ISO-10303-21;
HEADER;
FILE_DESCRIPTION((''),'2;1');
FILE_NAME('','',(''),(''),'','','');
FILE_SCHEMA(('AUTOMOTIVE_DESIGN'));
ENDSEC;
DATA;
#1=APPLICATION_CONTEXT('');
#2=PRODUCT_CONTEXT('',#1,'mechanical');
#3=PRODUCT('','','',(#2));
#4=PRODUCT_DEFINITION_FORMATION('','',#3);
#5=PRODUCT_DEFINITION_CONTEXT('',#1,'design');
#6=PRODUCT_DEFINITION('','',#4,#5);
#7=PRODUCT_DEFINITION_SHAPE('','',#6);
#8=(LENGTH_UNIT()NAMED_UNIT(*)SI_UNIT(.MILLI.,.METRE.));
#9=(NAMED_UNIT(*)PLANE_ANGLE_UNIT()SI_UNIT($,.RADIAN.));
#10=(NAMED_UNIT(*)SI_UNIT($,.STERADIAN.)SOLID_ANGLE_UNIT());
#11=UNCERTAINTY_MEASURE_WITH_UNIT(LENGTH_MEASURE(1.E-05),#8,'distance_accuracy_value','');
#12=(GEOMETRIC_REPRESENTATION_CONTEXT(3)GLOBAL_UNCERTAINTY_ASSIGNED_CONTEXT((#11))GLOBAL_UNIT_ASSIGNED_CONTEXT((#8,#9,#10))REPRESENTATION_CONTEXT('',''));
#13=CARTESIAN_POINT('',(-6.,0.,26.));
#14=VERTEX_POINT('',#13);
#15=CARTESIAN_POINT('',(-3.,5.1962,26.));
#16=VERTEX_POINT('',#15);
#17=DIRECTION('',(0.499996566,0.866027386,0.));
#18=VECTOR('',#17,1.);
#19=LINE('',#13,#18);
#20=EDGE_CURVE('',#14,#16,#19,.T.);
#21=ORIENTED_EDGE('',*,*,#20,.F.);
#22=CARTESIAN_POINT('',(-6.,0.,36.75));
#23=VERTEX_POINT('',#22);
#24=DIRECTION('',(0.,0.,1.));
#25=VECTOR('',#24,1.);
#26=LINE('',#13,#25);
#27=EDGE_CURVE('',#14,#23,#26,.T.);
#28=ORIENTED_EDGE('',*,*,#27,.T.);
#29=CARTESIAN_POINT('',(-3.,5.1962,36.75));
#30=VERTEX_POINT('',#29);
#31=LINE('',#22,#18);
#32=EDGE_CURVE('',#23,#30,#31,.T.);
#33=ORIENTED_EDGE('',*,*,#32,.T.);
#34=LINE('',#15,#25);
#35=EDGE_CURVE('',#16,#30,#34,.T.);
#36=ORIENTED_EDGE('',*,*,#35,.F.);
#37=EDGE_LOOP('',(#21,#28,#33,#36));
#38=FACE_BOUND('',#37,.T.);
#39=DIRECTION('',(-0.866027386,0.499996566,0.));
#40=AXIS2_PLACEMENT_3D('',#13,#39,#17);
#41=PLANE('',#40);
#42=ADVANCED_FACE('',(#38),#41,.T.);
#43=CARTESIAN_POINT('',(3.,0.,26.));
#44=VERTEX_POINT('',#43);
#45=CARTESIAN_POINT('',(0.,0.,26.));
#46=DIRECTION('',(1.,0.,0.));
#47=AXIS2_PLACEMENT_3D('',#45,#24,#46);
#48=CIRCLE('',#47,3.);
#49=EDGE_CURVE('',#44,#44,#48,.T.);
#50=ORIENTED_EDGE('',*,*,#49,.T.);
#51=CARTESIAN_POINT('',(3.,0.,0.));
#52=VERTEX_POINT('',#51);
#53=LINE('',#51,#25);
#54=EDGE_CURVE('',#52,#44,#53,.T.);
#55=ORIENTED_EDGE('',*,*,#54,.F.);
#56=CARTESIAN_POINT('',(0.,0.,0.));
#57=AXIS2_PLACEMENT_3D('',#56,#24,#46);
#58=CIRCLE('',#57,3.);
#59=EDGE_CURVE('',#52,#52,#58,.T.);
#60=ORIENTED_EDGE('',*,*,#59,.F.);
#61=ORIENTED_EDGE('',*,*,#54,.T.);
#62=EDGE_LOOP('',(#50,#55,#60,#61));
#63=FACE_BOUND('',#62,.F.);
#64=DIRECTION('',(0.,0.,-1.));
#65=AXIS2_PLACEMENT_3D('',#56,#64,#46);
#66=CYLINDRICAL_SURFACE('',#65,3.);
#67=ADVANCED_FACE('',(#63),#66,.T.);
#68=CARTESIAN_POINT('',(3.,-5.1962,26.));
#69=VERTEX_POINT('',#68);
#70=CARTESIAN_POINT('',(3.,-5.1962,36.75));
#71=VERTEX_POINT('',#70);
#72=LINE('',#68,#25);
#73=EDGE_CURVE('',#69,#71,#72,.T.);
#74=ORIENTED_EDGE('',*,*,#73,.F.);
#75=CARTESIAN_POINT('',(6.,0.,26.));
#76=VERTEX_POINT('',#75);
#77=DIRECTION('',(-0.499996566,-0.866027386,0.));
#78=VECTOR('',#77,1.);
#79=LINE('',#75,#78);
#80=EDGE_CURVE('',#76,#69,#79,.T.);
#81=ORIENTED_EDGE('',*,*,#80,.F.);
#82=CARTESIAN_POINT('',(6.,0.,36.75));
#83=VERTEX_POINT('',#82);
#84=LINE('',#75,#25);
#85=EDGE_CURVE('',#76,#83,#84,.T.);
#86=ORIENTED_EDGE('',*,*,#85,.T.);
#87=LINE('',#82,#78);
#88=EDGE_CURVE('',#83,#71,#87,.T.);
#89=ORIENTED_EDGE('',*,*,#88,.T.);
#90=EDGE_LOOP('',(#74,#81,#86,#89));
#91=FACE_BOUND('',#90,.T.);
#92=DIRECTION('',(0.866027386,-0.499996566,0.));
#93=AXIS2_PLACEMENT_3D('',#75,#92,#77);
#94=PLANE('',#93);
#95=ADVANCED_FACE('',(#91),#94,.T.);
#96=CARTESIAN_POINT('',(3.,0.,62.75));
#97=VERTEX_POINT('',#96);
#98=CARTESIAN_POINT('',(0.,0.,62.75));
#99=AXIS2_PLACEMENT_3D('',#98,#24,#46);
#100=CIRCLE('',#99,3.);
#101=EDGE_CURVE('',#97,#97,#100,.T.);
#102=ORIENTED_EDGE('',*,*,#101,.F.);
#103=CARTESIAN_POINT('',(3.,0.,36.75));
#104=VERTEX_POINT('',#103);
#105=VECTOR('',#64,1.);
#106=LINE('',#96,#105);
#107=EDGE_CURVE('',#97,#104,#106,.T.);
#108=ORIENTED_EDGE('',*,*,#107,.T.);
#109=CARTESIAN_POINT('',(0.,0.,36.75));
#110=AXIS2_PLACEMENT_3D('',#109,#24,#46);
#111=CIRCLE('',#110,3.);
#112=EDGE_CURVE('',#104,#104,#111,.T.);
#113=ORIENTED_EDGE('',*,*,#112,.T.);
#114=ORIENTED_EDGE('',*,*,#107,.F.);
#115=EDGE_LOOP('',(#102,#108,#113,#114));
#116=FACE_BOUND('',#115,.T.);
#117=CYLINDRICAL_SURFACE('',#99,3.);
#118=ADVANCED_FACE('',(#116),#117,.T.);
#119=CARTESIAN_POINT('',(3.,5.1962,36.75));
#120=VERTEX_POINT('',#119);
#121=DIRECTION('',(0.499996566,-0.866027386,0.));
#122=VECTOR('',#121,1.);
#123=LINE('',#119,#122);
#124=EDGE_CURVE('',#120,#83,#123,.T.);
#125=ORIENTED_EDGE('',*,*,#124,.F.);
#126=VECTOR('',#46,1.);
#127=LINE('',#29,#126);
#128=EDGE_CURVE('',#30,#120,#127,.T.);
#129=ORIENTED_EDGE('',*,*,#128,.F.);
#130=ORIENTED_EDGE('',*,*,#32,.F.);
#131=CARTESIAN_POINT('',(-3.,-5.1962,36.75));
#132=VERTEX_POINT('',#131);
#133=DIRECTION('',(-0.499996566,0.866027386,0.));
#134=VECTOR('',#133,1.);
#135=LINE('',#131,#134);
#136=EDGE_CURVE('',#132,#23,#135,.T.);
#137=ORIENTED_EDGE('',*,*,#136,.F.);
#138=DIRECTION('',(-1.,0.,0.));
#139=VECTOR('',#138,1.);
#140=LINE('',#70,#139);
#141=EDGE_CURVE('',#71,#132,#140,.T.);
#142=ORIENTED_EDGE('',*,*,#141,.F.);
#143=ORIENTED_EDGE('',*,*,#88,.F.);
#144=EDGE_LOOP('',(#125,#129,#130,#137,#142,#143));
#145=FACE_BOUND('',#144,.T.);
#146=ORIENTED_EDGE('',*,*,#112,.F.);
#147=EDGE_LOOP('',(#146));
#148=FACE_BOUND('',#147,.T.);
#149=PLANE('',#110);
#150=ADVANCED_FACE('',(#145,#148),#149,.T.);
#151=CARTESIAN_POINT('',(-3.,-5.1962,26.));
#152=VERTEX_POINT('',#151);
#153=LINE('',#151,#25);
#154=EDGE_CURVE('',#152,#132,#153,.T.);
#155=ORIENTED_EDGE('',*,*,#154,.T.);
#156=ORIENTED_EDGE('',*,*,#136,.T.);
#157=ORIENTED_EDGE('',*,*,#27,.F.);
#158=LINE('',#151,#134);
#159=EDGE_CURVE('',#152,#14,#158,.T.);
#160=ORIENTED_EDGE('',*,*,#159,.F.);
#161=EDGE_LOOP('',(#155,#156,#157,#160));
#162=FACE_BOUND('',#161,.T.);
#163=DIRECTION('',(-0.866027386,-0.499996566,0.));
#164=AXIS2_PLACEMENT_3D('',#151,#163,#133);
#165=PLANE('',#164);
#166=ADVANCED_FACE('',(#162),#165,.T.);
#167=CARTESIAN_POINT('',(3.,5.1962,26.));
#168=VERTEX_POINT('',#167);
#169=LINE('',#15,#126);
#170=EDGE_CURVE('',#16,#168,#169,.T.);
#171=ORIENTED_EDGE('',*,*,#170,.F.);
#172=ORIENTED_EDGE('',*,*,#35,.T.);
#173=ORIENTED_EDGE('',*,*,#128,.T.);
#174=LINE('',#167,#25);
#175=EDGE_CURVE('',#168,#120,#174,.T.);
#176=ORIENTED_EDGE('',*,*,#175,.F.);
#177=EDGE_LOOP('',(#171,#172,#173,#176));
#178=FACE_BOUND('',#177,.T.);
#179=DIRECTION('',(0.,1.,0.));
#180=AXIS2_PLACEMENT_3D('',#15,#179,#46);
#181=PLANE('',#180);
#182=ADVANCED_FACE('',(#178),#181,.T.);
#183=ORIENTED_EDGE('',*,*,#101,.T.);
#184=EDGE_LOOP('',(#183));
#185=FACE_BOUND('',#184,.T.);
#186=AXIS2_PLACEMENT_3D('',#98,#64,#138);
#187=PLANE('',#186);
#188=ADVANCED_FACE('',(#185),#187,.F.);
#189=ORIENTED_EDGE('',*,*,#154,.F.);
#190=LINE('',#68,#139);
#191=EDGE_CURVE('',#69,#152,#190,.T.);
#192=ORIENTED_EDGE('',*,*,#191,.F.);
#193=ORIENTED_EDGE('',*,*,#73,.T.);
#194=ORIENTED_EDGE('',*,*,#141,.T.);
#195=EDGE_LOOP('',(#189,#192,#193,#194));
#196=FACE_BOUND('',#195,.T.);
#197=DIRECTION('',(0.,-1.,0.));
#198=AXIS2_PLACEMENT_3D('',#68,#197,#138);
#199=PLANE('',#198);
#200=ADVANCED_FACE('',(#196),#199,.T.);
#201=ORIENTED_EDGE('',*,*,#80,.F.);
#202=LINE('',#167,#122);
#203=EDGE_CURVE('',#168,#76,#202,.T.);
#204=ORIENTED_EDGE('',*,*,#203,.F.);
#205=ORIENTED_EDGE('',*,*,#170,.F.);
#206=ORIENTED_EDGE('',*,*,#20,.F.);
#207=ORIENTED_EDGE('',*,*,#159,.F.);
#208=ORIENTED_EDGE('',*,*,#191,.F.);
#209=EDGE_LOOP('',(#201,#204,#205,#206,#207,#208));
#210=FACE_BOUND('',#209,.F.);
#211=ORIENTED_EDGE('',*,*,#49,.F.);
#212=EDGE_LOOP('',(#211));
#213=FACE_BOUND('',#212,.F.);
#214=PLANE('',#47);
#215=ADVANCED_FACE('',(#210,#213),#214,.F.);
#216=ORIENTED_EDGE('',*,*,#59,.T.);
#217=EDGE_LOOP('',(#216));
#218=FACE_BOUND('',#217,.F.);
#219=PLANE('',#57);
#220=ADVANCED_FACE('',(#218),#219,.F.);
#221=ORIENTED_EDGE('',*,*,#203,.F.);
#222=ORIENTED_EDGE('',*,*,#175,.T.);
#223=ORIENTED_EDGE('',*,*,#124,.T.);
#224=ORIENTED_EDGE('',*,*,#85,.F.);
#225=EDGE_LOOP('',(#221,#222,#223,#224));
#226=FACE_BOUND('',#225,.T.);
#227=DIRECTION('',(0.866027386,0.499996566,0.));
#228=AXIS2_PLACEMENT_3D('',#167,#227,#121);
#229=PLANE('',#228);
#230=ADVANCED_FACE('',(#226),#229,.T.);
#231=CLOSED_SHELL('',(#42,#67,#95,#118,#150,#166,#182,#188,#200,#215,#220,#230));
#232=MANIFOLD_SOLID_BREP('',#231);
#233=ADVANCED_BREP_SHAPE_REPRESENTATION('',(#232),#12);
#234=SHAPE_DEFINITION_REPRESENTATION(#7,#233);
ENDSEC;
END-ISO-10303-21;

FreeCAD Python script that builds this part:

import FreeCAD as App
import Part
import Sketcher
Q = App.Units.Quantity


def add_polygon(sketch, points):
    """Adds a closed chain of lines whose ends are joined by coincident constraints."""
    first, n = sketch.GeometryCount, len(points)
    for a, b in zip(points, points[1:] + points[:1]):
        sketch.addGeometry(Part.LineSegment(App.Vector(*a, 0), App.Vector(*b, 0)), False)
    for i in range(n):
        sketch.addConstraint(Sketcher.Constraint("Coincident", first + i, 2, first + (i + 1) % n, 1))

doc = App.newDocument("Part")
body = doc.addObject("PartDesign::Body", "Body")

# Sketch on XY plane
sketch1 = doc.addObject("Sketcher::SketchObject", "Sketch")
body.addObject(sketch1)
sketch1.AttachmentSupport = (doc.XY_Plane, [""])
sketch1.MapMode = "FlatFace"
sketch1.addGeometry(Part.Circle(App.Vector(0, 0, 0), App.Vector(0, 0, 1), 3), False)
sketch1.addConstraint([
    Sketcher.Constraint("Coincident", 0, 3, -1, 1),
    Sketcher.Constraint("Diameter", 0, Q("6 mm")),
])
pad1 = doc.addObject("PartDesign::Pad", "Pad")
body.addObject(pad1)
pad1.Profile = sketch1
pad1.Length = 26

# Sketch on XY plane
sketch2 = doc.addObject("Sketcher::SketchObject", "Sketch001")
body.addObject(sketch2)
sketch2.AttachmentSupport = (doc.XY_Plane, [""])
sketch2.MapMode = "FlatFace"
sketch2.AttachmentOffset = App.Placement(App.Vector(0, 0, 26), App.Rotation())
add_polygon(sketch2, [(3, -5), (6, 0), (3, 5), (-3, 5), (-6, 0), (-3, -5)])  # lines 0-5
sketch2.addConstraint([
    Sketcher.Constraint("Horizontal", 2),
    Sketcher.Constraint("Horizontal", 5),
    Sketcher.Constraint("Symmetric", 0, 2, 3, 2, -1, 1),
    Sketcher.Constraint("Symmetric", 1, 2, 4, 2, -1, 1),
    Sketcher.Constraint("PointOnObject", 0, 2, -1),
    Sketcher.Constraint("Parallel", 0, 3),
    Sketcher.Constraint("Vertical", 2, 2, 4, 2),
    Sketcher.Constraint("DistanceX", 2, 2, 2, 1, Q("6 mm")),
    Sketcher.Constraint("Distance", 0, Q("6 mm")),
    Sketcher.Constraint("DistanceX", -1, 1, 0, 2, Q("6 mm")),
])
pad2 = doc.addObject("PartDesign::Pad", "Pad001")
body.addObject(pad2)
pad2.Profile = sketch2
pad2.Length = 10.75
doc.recompute()

datumplane = doc.addObject("PartDesign::Plane", "DatumPlane")
body.addObject(datumplane)
datumplane.AttachmentSupport = (doc.XY_Plane, [""])
datumplane.MapMode = "FlatFace"
datumplane.AttachmentOffset = App.Placement(App.Vector(0, 0, 31.375), App.Rotation())
mirrored = doc.addObject("PartDesign::Mirrored", "Mirrored")
body.addObject(mirrored)
mirrored.Originals = [pad1]
mirrored.MirrorPlane = (datumplane, [""])
body.Tip = mirrored

doc.recompute()
